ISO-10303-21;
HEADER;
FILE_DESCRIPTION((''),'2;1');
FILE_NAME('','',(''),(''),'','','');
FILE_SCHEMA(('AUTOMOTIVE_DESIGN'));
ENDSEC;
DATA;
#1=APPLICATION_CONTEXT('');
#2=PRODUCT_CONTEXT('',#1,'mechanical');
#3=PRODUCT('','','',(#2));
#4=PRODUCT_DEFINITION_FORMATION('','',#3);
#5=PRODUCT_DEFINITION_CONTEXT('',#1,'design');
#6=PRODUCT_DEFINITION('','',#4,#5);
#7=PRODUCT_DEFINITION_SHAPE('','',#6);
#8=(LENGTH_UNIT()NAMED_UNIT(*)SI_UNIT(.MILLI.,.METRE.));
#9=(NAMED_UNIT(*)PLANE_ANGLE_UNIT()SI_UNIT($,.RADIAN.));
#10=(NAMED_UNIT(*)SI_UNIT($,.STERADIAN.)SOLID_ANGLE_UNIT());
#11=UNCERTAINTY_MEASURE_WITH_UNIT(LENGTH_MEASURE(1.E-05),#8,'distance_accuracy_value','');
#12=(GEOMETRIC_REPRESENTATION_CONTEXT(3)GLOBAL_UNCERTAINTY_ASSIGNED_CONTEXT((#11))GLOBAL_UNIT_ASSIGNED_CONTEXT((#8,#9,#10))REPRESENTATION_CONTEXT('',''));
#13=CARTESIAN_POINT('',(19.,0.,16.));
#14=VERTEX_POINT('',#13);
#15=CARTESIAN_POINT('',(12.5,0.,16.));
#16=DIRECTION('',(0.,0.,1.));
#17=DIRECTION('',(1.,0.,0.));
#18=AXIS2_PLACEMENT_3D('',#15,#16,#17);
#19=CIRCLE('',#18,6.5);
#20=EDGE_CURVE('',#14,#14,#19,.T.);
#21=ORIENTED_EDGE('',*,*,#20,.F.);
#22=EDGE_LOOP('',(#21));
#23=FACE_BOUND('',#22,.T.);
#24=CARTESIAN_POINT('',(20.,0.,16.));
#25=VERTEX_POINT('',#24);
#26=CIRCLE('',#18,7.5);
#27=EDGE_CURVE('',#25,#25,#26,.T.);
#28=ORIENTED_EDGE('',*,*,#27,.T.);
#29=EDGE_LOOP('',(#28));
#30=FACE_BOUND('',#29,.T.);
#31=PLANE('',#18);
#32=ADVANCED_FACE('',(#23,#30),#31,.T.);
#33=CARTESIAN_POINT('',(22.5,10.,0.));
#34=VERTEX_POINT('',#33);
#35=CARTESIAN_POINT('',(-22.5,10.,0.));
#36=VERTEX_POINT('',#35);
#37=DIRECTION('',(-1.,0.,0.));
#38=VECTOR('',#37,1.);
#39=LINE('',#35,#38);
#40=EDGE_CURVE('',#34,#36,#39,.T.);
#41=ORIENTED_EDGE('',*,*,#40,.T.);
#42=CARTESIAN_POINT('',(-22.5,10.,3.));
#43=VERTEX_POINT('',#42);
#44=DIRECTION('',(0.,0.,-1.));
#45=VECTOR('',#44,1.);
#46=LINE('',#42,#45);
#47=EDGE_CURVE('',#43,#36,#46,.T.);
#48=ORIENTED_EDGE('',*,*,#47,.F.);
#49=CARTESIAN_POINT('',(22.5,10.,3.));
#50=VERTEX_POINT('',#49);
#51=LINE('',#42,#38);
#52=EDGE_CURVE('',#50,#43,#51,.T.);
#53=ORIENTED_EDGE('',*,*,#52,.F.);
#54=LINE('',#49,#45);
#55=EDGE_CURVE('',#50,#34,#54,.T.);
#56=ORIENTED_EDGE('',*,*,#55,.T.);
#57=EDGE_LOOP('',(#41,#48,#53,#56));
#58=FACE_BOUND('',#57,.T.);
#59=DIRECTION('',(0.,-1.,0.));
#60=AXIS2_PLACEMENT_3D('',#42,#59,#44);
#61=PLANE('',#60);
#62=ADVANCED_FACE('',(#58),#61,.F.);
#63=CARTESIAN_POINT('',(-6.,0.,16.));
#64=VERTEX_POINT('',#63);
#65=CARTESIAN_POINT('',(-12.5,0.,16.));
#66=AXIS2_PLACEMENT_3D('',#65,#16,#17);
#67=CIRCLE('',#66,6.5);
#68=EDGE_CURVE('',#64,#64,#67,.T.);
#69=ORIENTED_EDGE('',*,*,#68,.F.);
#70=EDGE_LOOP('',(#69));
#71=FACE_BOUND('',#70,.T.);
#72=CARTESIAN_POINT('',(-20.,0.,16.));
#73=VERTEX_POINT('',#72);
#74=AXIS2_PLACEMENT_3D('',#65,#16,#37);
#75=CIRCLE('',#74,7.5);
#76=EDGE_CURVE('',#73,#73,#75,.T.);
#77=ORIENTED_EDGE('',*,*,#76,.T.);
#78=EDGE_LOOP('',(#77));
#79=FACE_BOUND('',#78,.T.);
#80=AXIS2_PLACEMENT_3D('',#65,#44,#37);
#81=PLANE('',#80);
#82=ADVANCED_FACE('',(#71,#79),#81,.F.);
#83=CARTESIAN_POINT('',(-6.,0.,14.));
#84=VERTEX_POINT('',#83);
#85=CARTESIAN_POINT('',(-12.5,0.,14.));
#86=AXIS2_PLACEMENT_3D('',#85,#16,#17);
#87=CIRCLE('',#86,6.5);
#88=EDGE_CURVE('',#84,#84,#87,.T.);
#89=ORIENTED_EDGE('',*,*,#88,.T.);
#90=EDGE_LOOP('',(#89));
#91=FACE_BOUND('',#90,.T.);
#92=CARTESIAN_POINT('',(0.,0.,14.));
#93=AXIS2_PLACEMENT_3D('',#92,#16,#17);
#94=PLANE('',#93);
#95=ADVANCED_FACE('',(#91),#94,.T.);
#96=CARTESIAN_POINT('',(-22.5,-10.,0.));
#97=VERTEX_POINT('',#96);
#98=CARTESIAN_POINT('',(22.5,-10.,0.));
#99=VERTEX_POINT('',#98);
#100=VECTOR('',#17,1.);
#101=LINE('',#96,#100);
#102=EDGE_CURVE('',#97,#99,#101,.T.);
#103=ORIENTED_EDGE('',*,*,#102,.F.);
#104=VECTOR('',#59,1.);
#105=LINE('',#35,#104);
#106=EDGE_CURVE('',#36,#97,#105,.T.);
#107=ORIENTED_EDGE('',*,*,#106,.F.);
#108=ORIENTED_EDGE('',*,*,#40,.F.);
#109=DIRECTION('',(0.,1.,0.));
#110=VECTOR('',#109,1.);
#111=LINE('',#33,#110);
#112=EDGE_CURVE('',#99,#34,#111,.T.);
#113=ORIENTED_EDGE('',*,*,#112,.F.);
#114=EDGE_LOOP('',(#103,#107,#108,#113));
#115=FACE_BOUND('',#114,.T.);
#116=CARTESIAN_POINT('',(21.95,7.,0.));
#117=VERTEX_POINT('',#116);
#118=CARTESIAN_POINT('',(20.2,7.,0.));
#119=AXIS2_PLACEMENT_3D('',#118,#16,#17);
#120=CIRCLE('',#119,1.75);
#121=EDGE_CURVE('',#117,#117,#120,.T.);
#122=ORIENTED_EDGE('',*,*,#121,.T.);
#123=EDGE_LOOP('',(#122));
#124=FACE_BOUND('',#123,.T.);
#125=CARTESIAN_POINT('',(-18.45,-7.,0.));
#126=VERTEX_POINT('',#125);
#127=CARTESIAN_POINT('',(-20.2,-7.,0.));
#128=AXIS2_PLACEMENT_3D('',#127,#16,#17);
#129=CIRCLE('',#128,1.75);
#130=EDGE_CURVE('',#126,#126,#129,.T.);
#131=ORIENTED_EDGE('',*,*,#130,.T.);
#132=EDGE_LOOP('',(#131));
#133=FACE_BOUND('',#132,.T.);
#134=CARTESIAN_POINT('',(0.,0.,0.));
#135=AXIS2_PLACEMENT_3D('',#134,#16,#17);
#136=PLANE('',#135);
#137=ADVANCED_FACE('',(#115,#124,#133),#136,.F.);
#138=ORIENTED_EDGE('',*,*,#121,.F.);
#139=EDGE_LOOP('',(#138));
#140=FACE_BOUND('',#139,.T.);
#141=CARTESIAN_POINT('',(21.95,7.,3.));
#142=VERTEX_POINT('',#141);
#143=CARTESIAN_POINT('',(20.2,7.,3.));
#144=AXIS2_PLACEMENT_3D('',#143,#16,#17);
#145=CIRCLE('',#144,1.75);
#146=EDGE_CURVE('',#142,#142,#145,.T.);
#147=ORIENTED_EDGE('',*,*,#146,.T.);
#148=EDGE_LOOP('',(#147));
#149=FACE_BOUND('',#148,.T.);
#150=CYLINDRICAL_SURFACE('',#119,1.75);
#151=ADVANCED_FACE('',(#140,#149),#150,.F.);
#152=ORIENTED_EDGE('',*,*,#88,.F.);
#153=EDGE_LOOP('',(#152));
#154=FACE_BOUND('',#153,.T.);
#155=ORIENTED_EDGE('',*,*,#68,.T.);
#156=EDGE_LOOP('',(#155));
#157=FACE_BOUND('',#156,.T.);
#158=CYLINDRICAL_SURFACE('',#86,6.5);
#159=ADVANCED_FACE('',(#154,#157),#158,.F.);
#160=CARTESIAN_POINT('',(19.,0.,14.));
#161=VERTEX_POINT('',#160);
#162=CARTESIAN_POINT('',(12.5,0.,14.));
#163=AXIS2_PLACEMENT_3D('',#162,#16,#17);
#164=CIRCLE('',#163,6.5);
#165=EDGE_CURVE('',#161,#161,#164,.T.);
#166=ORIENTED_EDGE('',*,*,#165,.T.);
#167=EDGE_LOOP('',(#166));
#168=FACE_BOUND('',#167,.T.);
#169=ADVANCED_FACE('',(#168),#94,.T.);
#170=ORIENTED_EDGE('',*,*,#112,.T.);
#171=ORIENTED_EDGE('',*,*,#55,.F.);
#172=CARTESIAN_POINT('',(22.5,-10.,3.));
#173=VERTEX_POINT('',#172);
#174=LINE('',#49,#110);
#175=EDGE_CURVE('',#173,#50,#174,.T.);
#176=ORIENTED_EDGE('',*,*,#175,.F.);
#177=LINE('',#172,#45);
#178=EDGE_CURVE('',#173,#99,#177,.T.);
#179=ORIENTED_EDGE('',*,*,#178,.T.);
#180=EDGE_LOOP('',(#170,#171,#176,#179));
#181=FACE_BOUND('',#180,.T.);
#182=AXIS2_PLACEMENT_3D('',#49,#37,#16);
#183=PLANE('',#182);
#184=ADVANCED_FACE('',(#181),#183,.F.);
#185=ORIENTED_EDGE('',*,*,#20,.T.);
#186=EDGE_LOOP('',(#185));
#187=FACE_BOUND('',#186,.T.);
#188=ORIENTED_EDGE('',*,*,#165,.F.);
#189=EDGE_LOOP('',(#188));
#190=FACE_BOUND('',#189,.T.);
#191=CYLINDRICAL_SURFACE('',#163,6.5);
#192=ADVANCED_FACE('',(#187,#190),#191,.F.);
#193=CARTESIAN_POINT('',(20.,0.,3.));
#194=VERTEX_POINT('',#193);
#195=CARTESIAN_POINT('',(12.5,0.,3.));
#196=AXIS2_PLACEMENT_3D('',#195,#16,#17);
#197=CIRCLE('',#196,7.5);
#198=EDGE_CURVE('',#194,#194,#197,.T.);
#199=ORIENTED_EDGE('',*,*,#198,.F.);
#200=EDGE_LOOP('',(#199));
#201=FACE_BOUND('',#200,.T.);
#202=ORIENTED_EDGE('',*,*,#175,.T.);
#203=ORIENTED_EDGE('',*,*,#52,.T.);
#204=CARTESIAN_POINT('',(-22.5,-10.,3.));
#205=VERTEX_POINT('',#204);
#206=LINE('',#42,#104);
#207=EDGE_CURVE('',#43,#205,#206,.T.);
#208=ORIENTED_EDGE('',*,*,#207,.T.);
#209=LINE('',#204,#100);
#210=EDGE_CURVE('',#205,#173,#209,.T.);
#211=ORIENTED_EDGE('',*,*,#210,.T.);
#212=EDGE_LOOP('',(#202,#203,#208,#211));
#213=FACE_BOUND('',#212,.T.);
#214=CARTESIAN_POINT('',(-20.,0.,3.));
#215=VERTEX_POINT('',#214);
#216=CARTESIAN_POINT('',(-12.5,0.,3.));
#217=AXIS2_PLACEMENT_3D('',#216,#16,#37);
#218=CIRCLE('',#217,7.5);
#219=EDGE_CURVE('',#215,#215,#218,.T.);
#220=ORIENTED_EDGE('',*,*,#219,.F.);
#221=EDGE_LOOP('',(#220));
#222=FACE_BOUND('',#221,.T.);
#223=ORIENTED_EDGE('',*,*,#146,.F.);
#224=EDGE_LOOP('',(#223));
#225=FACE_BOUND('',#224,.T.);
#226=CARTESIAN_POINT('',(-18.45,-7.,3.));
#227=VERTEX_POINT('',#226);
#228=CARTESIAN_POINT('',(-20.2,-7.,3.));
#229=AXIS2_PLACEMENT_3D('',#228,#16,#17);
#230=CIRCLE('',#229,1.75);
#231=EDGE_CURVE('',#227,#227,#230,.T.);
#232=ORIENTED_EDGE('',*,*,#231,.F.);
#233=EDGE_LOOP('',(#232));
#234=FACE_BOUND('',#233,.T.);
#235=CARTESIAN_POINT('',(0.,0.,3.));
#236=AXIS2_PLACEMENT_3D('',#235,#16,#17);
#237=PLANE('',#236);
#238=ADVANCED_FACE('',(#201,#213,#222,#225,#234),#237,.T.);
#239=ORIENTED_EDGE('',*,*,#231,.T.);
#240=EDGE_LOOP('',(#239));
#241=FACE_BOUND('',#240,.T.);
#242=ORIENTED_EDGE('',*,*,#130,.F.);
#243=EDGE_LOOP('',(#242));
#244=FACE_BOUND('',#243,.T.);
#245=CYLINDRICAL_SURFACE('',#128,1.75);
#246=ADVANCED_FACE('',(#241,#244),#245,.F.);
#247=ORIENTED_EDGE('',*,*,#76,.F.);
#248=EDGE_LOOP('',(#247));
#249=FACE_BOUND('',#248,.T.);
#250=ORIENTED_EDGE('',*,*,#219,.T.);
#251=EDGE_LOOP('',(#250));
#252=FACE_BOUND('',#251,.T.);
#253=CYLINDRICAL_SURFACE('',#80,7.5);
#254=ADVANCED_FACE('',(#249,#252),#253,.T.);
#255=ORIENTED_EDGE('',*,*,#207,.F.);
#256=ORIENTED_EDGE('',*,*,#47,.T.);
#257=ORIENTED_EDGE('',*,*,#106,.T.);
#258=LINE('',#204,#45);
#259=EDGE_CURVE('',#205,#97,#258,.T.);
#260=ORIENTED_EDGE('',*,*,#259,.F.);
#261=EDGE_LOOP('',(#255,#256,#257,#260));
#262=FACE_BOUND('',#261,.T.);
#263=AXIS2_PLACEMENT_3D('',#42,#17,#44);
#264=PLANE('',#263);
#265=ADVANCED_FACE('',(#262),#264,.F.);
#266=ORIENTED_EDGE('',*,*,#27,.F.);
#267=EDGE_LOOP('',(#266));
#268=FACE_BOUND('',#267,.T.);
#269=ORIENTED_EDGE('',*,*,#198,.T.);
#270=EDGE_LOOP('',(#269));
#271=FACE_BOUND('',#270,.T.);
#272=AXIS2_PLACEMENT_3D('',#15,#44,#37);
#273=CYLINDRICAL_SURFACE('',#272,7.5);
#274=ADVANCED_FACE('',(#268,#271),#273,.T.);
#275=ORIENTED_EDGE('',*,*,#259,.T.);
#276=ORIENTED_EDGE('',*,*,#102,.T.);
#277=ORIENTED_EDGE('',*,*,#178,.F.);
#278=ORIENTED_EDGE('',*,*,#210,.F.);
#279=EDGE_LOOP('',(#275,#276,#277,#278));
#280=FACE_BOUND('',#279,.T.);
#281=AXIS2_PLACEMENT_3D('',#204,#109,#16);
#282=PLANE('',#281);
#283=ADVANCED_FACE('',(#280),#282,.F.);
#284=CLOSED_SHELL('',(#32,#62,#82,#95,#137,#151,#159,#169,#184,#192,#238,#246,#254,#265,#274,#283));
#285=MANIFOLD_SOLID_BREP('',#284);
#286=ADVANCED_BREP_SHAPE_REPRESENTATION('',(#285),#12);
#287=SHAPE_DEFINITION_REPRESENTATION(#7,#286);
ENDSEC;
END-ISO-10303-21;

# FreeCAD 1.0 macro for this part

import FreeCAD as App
import Part
import Sketcher
from FreeCAD import Vector


def add_polygon(sketch, points):
    """Adds a closed chain of lines whose ends are joined by coincident constraints."""
    first, n = sketch.GeometryCount, len(points)
    for a, b in zip(points, points[1:] + points[:1]):
        sketch.addGeometry(Part.LineSegment(App.Vector(*a, 0), App.Vector(*b, 0)), False)
    for i in range(n):
        sketch.addConstraint(Sketcher.Constraint("Coincident", first + i, 2, first + (i + 1) % n, 1))

doc = App.newDocument("Part")
body = doc.addObject("PartDesign::Body", "Body")

sketch1 = body.newObject("Sketcher::SketchObject", "Sketch")
sketch1.AttachmentSupport = (doc.getObject("XY_Plane"), [""])
sketch1.MapMode = "FlatFace"
add_polygon(sketch1, [(-22, 10), (-22, -10), (22, -10), (22, 10)])
sketch1.addConstraint(Sketcher.Constraint("Vertical", 0))
sketch1.addConstraint(Sketcher.Constraint("Horizontal", 1))
sketch1.addConstraint(Sketcher.Constraint("Vertical", 2))
sketch1.addConstraint(Sketcher.Constraint("Horizontal", 3))
sketch1.addConstraint(Sketcher.Constraint("Symmetric", 0, 2, 2, 2, -1, 1))
sketch1.addConstraint(Sketcher.Constraint("DistanceX", 1, 1, 1, 2, 45.0))
sketch1.addConstraint(Sketcher.Constraint("DistanceY", 0, 2, 0, 1, 20.0))
pad1 = body.newObject("PartDesign::Pad", "Pad")
pad1.Profile = sketch1
pad1.Length = 3

sketch2 = body.newObject("Sketcher::SketchObject", "Sketch001")
sketch2.AttachmentSupport = (doc.getObject("XY_Plane"), [""])
sketch2.MapMode = "FlatFace"
sketch2.AttachmentOffset = App.Placement(Vector(0, 0, 3), App.Rotation())
sketch2.addGeometry(Part.Circle(Vector(12, 0, 0), Vector(0, 0, 1), 8), False)
sketch2.addGeometry(Part.Circle(Vector(-12, 0, 0), Vector(0, 0, 1), 8), False)
sketch2.addConstraint(Sketcher.Constraint("Equal", 0, 1))
sketch2.addConstraint(Sketcher.Constraint("Symmetric", 0, 3, 1, 3, -1, 1))
sketch2.addConstraint(Sketcher.Constraint("PointOnObject", 0, 3, -1))
sketch2.addConstraint(Sketcher.Constraint("Diameter", 0, 15.0))
sketch2.addConstraint(Sketcher.Constraint("DistanceX", 1, 3, 0, 3, 25.0))
pad2 = body.newObject("PartDesign::Pad", "Pad001")
pad2.Profile = sketch2
pad2.Length = 13

sketch3 = body.newObject("Sketcher::SketchObject", "Sketch002")
sketch3.AttachmentSupport = (doc.getObject("XY_Plane"), [""])
sketch3.MapMode = "FlatFace"
sketch3.AttachmentOffset = App.Placement(Vector(0, 0, 3), App.Rotation())
sketch3.addGeometry(Part.Circle(Vector(20.2, 7, 0), Vector(0, 0, 1), 1.8), False)
sketch3.addGeometry(Part.Circle(Vector(-20.2, -7, 0), Vector(0, 0, 1), 1.8), False)
sketch3.addConstraint(Sketcher.Constraint("Equal", 0, 1))
sketch3.addConstraint(Sketcher.Constraint("Symmetric", 0, 3, 1, 3, -1, 1))
sketch3.addConstraint(Sketcher.Constraint("Diameter", 0, 3.5))
sketch3.addConstraint(Sketcher.Constraint("DistanceY", -1, 1, 0, 3, 7.0))
sketch3.addConstraint(Sketcher.Constraint("DistanceX", -1, 1, 0, 3, 20.2))
pocket1 = body.newObject("PartDesign::Pocket", "Pocket")
pocket1.Profile = sketch3
pocket1.Type = "ThroughAll"
pocket1.Midplane = True

sketch4 = body.newObject("Sketcher::SketchObject", "Sketch003")
sketch4.AttachmentSupport = (doc.getObject("XY_Plane"), [""])
sketch4.MapMode = "FlatFace"
sketch4.AttachmentOffset = App.Placement(Vector(0, 0, 16), App.Rotation())
sketch4.addGeometry(Part.Circle(Vector(-12, 0, 0), Vector(0, 0, 1), 6), False)
sketch4.addGeometry(Part.Circle(Vector(12, 0, 0), Vector(0, 0, 1), 6), False)
sketch4.addConstraint(Sketcher.Constraint("Equal", 0, 1))
sketch4.addConstraint(Sketcher.Constraint("Symmetric", 0, 3, 1, 3, -1, 1))
sketch4.addConstraint(Sketcher.Constraint("PointOnObject", 0, 3, -1))
sketch4.addConstraint(Sketcher.Constraint("Diameter", 0, 13.0))
sketch4.addConstraint(Sketcher.Constraint("DistanceX", 0, 3, 1, 3, 25.0))
pocket2 = body.newObject("PartDesign::Pocket", "Pocket001")
pocket2.Profile = sketch4
pocket2.Length = 2

doc.recompute()
